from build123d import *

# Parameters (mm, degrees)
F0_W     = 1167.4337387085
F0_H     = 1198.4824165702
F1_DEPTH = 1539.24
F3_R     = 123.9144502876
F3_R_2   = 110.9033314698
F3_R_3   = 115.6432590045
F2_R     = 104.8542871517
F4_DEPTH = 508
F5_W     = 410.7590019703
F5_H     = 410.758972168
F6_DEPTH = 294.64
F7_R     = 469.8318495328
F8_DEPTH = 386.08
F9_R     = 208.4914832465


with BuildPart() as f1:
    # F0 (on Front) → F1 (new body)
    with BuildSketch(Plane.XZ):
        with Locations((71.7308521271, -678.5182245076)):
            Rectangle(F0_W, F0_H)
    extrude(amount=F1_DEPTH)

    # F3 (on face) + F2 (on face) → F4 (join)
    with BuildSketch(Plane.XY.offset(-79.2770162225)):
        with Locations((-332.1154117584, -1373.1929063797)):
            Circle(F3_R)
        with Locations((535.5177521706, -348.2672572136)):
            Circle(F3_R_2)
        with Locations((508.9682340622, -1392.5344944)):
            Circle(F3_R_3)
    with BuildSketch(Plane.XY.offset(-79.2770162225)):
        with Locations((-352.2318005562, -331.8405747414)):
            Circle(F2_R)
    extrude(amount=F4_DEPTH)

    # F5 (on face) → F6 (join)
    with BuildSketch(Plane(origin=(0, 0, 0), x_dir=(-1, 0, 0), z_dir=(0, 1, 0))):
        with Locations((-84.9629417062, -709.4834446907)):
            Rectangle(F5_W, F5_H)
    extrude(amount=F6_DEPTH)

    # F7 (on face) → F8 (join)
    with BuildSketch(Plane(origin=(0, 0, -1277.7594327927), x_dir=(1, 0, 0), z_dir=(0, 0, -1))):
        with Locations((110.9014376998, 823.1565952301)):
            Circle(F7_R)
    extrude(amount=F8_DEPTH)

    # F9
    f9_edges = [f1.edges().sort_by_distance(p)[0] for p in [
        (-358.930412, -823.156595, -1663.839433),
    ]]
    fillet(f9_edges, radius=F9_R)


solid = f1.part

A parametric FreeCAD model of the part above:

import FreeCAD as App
import Part
import Sketcher
from FreeCAD import Vector
Q = App.Units.Quantity


def edges_at(feature, points):
    """Names of the edges that pass closest to the given points."""
    edges = feature.Shape.Edges
    near = lambda p: min(range(len(edges)), key=lambda i: edges[i].distToShape(Part.Vertex(*p))[0])
    return sorted({f"Edge{near(p) + 1}" for p in points})


def add_polygon(sketch, points):
    """Adds a closed chain of lines whose ends are joined by coincident constraints."""
    first, n = sketch.GeometryCount, len(points)
    for a, b in zip(points, points[1:] + points[:1]):
        sketch.addGeometry(Part.LineSegment(App.Vector(*a, 0), App.Vector(*b, 0)), False)
    for i in range(n):
        sketch.addConstraint(Sketcher.Constraint("Coincident", first + i, 2, first + (i + 1) % n, 1))

doc = App.newDocument("Part")
body = doc.addObject("PartDesign::Body", "Body")

# Sketch on XZ plane
sketch1 = doc.addObject("Sketcher::SketchObject", "Sketch")
body.addObject(sketch1)
sketch1.AttachmentSupport = (doc.XZ_Plane, [""])
sketch1.MapMode = "FlatFace"
add_polygon(sketch1, [(-512, -79), (-512, -1278), (655, -1278), (655, -79)])  # lines 0-3
sketch1.addConstraint(Sketcher.Constraint("Vertical", 0))
sketch1.addConstraint(Sketcher.Constraint("Horizontal", 1))
sketch1.addConstraint(Sketcher.Constraint("Vertical", 2))
sketch1.addConstraint(Sketcher.Constraint("Horizontal", 3))
sketch1.addConstraint(Sketcher.Constraint("DistanceX", 1, 1, 1, 2, 1167.433739))
sketch1.addConstraint(Sketcher.Constraint("DistanceY", 0, 2, 0, 1, 1198.482417))
sketch1.addConstraint(Sketcher.Constraint("DistanceX", -1, 1, 1, 2, 655.447721))
sketch1.addConstraint(Sketcher.Constraint("DistanceY", 0, 2, -1, 1, 1277.759433))
pad1 = doc.addObject("PartDesign::Pad", "Pad")
body.addObject(pad1)
pad1.Profile = sketch1
pad1.Length = Q("60.6 in")

# Sketch on XY plane
sketch2 = doc.addObject("Sketcher::SketchObject", "Sketch001")
body.addObject(sketch2)
sketch2.AttachmentSupport = (doc.XY_Plane, [""])
sketch2.MapMode = "FlatFace"
sketch2.AttachmentOffset = App.Placement(Vector(0, 0, -79.277016), App.Rotation())
sketch2.addGeometry(Part.Circle(Vector(-332, -1373, 0), Vector(0, 0, 1), 124), False)
sketch2.addGeometry(Part.Circle(Vector(536, -348, 0), Vector(0, 0, 1), 111), False)
sketch2.addGeometry(Part.Circle(Vector(509, -1393, 0), Vector(0, 0, 1), 116), False)
sketch2.addGeometry(Part.Circle(Vector(-352, -332, 0), Vector(0, 0, 1), 105), False)
sketch2.addConstraint(Sketcher.Constraint("Diameter", 0, 247.828901))
sketch2.addConstraint(Sketcher.Constraint("Diameter", 2, 231.286518))
sketch2.addConstraint(Sketcher.Constraint("Diameter", 1, 221.806663))
sketch2.addConstraint(Sketcher.Constraint("Diameter", 3, 209.708574))
sketch2.addConstraint(Sketcher.Constraint("DistanceX", 3, 3, -1, 1, 352.231801))
sketch2.addConstraint(Sketcher.Constraint("DistanceX", 0, 3, -1, 1, 332.115412))
sketch2.addConstraint(Sketcher.Constraint("DistanceY", 0, 3, 1, 3, 1024.925649))
sketch2.addConstraint(Sketcher.Constraint("DistanceY", 2, 3, 0, 3, 19.341588))
sketch2.addConstraint(Sketcher.Constraint("DistanceX", 2, 3, 1, 3, 26.549518))
sketch2.addConstraint(Sketcher.Constraint("DistanceY", 0, 3, 3, 3, 1041.352332))
sketch2.addConstraint(Sketcher.Constraint("DistanceY", 0, 3, -1, 1, 1373.192906))
sketch2.addConstraint(Sketcher.Constraint("DistanceX", -1, 1, 1, 3, 535.517752))
pad2 = doc.addObject("PartDesign::Pad", "Pad001")
body.addObject(pad2)
pad2.Profile = sketch2
pad2.Length = Q("20 in")

# Sketch on XZ plane
sketch3 = doc.addObject("Sketcher::SketchObject", "Sketch002")
body.addObject(sketch3)
sketch3.AttachmentSupport = (doc.XZ_Plane, [""])
sketch3.MapMode = "FlatFace"
add_polygon(sketch3, [(290, -504), (290, -915), (-120, -915), (-120, -504)])  # lines 0-3
sketch3.addConstraint(Sketcher.Constraint("Vertical", 0))
sketch3.addConstraint(Sketcher.Constraint("Horizontal", 1))
sketch3.addConstraint(Sketcher.Constraint("Vertical", 2))
sketch3.addConstraint(Sketcher.Constraint("Horizontal", 3))
sketch3.addConstraint(Sketcher.Constraint("DistanceX", 1, 2, 1, 1, 410.759002))
sketch3.addConstraint(Sketcher.Constraint("DistanceY", 0, 2, 0, 1, 410.758972))
sketch3.addConstraint(Sketcher.Constraint("DistanceY", 0, 2, -1, 1, 914.862931))
sketch3.addConstraint(Sketcher.Constraint("DistanceX", 1, 2, -1, 1, 120.416559))
pad3 = doc.addObject("PartDesign::Pad", "Pad002")
body.addObject(pad3)
pad3.Profile = sketch3
pad3.Length = Q("11.6 in")
pad3.Reversed = True

# Sketch on XY plane
sketch4 = doc.addObject("Sketcher::SketchObject", "Sketch003")
body.addObject(sketch4)
sketch4.AttachmentSupport = (doc.XY_Plane, [""])
sketch4.MapMode = "FlatFace"
sketch4.AttachmentOffset = App.Placement(Vector(0, 0, -1277.759433), App.Rotation())
sketch4.addGeometry(Part.Circle(Vector(111, -823, 0), Vector(0, 0, 1), 470), False)
sketch4.addConstraint(Sketcher.Constraint("Diameter", 0, 939.663699))
sketch4.addConstraint(Sketcher.Constraint("DistanceX", -1, 1, 0, 3, 110.901438))
sketch4.addConstraint(Sketcher.Constraint("DistanceY", 0, 3, -1, 1, 823.156595))
pad4 = doc.addObject("PartDesign::Pad", "Pad003")
body.addObject(pad4)
pad4.Profile = sketch4
pad4.Length = Q("15.2 in")
pad4.Reversed = True
doc.recompute()

fillet = doc.addObject("PartDesign::Fillet", "Fillet")
body.addObject(fillet)
fillet.Base = (pad4, edges_at(pad4, [(-358.93, -823.157, -1663.839)]))
fillet.Radius = 208.491483

doc.recompute()
